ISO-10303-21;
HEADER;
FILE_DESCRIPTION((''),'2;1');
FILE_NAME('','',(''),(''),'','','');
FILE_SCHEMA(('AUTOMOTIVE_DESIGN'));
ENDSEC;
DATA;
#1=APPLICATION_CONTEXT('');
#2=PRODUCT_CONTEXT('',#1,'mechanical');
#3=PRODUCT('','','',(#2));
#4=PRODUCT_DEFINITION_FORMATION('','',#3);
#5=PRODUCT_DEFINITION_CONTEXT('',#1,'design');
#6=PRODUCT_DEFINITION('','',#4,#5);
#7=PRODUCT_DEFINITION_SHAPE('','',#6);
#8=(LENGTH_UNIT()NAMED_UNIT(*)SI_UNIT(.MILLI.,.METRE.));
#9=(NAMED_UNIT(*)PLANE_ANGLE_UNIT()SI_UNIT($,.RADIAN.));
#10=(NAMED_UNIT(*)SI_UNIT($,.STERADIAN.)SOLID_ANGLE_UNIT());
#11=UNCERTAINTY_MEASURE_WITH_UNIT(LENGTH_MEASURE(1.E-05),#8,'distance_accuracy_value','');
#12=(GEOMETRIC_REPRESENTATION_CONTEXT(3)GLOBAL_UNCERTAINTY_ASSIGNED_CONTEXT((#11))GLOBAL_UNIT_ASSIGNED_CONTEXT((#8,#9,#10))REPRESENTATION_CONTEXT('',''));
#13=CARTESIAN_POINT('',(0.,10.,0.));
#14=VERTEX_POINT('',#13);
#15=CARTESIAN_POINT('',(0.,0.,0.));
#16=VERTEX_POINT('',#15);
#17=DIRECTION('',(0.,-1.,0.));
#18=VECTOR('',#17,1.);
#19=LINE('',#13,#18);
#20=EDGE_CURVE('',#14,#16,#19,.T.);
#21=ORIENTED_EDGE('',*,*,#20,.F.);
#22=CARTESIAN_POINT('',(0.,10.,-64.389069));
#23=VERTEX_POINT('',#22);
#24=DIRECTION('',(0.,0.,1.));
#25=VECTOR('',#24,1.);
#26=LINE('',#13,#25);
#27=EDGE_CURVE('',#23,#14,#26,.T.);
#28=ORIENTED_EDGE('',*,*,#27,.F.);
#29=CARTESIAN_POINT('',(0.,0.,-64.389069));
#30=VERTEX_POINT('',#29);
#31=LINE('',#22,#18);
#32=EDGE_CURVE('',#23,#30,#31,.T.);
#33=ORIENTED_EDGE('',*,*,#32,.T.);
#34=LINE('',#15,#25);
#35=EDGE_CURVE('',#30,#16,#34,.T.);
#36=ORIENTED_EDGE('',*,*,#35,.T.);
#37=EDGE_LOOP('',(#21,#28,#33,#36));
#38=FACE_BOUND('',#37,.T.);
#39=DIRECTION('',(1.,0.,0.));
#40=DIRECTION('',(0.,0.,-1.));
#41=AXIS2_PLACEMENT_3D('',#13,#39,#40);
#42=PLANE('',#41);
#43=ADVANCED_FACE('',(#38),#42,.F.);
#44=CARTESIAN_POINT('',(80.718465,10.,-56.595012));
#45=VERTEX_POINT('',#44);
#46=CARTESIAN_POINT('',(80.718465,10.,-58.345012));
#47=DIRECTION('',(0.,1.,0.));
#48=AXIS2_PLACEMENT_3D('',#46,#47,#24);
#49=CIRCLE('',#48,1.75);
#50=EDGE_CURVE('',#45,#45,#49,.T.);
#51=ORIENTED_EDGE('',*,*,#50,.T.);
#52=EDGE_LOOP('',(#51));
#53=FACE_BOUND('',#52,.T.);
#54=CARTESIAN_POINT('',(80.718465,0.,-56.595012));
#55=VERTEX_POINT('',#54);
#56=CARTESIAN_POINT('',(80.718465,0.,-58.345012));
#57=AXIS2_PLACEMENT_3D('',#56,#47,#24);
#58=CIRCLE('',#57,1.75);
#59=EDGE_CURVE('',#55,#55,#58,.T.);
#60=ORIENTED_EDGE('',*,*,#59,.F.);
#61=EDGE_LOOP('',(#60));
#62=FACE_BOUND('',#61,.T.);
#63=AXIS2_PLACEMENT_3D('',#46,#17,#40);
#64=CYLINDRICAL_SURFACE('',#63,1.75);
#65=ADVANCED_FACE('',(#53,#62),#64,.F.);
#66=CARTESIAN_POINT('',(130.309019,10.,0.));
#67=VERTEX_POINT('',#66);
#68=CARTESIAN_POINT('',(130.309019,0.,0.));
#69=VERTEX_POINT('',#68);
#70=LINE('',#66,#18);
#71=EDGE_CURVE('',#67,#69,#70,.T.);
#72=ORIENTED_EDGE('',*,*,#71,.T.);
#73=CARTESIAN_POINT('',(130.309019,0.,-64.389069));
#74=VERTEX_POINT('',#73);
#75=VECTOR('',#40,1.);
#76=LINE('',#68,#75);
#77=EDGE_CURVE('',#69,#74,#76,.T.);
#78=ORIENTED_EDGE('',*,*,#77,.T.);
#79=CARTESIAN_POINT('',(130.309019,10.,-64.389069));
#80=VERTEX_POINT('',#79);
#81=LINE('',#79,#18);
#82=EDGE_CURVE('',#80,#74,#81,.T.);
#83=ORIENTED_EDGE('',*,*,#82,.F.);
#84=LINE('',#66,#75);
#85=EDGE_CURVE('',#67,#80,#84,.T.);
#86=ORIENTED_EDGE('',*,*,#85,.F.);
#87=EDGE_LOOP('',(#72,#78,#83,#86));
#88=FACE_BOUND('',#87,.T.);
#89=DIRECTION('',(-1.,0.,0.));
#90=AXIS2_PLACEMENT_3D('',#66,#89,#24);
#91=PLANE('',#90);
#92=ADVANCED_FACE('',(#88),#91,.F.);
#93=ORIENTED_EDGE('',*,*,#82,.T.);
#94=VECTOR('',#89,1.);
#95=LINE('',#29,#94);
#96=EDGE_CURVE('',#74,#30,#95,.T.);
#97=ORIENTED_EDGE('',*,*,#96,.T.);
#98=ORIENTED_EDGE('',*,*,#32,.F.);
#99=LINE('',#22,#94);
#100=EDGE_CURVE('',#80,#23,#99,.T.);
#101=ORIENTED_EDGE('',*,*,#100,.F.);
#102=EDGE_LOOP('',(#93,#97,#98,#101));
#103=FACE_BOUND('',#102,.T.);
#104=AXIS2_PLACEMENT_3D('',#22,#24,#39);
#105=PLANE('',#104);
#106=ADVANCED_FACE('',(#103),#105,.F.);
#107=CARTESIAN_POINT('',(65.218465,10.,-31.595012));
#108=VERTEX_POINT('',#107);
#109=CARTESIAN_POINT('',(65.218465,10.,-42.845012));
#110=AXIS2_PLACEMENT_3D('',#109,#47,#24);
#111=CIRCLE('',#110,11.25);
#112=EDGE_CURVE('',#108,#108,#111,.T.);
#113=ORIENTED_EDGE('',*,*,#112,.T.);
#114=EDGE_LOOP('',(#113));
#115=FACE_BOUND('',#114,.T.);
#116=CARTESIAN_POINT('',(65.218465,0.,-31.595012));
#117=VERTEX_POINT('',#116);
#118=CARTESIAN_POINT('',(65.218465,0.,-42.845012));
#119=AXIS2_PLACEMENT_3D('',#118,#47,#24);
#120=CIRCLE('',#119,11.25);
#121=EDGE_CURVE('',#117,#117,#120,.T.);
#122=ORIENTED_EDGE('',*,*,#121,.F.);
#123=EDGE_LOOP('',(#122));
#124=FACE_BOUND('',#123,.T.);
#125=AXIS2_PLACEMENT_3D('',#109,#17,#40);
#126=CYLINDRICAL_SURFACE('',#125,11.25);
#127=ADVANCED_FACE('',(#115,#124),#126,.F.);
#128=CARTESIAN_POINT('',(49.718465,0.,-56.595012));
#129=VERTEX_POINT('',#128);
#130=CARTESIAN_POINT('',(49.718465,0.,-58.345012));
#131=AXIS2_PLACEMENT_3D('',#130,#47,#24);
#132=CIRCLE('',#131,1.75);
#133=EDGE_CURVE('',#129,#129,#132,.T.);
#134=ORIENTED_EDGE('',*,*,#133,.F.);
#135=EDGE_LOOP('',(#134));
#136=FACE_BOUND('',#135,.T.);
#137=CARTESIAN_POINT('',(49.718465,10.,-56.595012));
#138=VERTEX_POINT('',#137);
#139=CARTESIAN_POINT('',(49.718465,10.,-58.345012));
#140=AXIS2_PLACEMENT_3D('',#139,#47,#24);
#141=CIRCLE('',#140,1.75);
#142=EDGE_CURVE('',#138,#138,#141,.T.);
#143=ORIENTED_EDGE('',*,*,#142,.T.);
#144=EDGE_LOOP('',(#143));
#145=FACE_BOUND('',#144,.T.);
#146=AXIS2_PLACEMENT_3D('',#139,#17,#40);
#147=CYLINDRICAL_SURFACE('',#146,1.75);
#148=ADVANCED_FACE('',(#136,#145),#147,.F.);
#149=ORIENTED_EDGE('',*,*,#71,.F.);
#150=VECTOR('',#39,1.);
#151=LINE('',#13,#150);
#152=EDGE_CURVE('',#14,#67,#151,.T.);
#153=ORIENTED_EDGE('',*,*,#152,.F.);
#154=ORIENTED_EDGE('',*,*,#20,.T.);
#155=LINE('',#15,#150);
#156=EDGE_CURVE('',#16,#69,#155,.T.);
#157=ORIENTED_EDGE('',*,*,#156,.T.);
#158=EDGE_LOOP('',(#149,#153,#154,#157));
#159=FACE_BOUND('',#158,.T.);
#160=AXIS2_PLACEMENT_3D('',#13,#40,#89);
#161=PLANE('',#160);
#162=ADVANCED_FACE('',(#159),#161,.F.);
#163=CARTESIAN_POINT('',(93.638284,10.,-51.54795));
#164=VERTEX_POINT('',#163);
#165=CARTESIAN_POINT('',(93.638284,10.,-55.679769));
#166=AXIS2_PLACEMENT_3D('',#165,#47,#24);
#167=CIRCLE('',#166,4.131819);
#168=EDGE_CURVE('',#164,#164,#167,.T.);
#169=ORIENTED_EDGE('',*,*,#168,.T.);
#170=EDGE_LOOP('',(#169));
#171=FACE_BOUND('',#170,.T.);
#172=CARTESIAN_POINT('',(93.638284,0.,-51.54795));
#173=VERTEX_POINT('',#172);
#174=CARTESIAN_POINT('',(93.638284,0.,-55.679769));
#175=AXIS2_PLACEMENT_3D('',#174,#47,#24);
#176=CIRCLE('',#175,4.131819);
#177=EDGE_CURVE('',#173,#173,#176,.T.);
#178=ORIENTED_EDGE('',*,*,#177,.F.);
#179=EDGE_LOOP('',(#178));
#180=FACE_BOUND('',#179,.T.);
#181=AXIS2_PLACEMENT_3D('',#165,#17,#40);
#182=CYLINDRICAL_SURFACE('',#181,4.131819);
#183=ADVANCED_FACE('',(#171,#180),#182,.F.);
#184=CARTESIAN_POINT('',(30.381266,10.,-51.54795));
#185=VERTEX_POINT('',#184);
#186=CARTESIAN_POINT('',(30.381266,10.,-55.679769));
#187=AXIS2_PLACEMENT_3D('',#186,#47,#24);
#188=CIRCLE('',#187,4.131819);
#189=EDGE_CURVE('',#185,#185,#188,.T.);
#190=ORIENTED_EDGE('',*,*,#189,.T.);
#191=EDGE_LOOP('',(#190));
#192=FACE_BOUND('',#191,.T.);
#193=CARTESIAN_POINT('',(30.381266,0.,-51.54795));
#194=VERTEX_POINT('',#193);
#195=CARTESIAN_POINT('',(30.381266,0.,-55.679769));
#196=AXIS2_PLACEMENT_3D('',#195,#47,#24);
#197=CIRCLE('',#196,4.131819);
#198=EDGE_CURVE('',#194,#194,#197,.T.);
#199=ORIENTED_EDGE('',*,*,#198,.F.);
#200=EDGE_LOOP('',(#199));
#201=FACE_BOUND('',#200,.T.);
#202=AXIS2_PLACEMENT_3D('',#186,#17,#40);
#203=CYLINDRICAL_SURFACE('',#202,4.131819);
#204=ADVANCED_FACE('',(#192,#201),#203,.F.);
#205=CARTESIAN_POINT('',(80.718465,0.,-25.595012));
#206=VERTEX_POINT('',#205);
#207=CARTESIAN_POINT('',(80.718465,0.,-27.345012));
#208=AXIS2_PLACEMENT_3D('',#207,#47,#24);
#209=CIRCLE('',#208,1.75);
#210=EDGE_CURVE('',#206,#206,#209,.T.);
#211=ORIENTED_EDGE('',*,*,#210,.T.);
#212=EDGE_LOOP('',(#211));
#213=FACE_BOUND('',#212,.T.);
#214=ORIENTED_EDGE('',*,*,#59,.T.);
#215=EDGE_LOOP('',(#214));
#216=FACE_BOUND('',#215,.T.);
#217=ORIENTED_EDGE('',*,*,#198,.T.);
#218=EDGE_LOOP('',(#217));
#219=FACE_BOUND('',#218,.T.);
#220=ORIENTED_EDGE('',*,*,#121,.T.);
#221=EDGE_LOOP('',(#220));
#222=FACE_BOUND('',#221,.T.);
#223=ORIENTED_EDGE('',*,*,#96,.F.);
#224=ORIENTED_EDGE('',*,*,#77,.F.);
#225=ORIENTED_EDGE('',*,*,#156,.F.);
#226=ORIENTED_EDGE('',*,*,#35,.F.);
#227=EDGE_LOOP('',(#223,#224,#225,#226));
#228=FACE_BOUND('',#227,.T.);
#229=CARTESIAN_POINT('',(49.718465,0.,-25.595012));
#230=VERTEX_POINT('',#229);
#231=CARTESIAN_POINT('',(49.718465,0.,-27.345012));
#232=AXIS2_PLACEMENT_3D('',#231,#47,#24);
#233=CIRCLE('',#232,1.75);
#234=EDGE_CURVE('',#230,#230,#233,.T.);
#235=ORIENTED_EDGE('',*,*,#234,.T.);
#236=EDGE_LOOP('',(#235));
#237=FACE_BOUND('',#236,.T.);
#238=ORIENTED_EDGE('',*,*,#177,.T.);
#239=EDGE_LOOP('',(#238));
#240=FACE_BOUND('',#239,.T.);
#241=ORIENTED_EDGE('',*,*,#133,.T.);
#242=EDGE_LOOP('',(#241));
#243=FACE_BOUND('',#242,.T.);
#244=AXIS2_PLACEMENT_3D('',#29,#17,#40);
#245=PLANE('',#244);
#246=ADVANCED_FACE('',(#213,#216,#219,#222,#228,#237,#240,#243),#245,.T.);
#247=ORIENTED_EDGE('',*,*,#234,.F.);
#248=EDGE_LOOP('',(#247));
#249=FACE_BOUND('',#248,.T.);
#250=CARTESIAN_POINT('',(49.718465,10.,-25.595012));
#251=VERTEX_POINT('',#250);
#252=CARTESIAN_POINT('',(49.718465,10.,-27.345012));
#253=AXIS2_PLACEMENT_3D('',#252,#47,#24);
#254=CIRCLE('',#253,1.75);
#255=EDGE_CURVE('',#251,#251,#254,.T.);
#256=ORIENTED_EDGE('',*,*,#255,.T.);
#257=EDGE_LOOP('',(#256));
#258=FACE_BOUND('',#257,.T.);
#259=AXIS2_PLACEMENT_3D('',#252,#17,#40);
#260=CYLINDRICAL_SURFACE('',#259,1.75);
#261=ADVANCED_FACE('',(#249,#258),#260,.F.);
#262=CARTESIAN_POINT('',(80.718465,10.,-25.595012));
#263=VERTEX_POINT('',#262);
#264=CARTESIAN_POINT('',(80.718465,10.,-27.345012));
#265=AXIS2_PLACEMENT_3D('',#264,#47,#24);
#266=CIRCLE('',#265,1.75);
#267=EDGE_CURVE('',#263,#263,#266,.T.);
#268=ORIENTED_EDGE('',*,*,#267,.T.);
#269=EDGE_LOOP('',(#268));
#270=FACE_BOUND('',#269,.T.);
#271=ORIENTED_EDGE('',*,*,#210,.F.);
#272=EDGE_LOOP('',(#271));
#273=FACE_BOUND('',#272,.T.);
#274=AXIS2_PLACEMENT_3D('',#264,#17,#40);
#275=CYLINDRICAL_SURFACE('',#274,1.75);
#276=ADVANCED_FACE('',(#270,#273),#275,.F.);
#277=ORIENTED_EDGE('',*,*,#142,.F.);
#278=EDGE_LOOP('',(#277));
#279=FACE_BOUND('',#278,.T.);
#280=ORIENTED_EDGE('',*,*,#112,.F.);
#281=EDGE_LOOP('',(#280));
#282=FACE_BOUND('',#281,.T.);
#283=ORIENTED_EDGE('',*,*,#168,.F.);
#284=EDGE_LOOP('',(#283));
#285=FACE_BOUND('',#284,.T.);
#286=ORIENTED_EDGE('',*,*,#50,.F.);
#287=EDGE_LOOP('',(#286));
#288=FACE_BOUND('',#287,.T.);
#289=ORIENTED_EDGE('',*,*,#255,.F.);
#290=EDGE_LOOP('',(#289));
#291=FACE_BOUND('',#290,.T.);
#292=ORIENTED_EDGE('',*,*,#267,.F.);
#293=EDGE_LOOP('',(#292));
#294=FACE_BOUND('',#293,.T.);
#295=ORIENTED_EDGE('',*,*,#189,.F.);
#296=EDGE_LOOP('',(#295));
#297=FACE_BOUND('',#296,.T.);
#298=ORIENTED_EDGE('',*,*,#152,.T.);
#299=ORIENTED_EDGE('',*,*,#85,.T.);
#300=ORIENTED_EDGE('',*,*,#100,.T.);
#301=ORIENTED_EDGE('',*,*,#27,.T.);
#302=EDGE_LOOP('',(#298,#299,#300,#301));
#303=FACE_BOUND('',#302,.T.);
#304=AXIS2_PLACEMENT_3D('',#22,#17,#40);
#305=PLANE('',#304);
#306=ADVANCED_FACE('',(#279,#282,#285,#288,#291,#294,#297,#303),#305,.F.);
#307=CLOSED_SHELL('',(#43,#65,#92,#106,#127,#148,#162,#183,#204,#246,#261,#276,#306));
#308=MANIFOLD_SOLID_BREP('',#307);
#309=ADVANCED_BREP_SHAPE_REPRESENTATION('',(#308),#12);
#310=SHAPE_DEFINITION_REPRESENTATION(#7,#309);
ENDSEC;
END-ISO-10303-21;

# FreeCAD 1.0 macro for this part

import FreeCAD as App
import Part
import Sketcher

V = App.Vector

doc = App.newDocument("Part")
params = doc.addObject("Spreadsheet::Sheet", "Params")
for row, (alias, value) in enumerate([
    ("sketch1_diameter", "3.5 mm"),
    ("sketch1_diameter2", "22.5 mm"),
    ("pad1_length", "10 mm"),
], start=1):
    params.set(f"A{row}", alias)
    params.set(f"B{row}", "=" + value)
    params.setAlias(f"B{row}", alias)

body = doc.addObject("PartDesign::Body", "Body")

# Sketch on XZ plane
sketch1 = doc.addObject("Sketcher::SketchObject", "Sketch")
body.addObject(sketch1)
sketch1.AttachmentSupport = (doc.XZ_Plane, [""])
sketch1.MapMode = "FlatFace"
sketch1.addGeometry(Part.LineSegment(V(0, -64.389069, 0), V(0, 0, 0)), False)
sketch1.addGeometry(Part.LineSegment(V(0, 0, 0), V(130.309019, 0, 0)), False)
sketch1.addGeometry(Part.LineSegment(V(130.309019, 0, 0), V(130.309019, -64.389069, 0)), False)
sketch1.addGeometry(Part.LineSegment(V(130.309019, -64.389069, 0), V(0, -64.389069, 0)), False)
sketch1.addGeometry(Part.Circle(V(49.718465, -27.345012, 0), V(0, 0, 1), 1.75), False)
sketch1.addGeometry(Part.Circle(V(80.718465, -27.345012, 0), V(0, 0, 1), 1.75), False)
sketch1.addGeometry(Part.Circle(V(30.381266, -55.679769, 0), V(0, 0, 1), 4.131819), False)
sketch1.addGeometry(Part.Circle(V(49.718465, -58.345012, 0), V(0, 0, 1), 1.75), False)
sketch1.addGeometry(Part.Circle(V(65.218465, -42.845012, 0), V(0, 0, 1), 11.25), False)
sketch1.addGeometry(Part.Circle(V(93.638284, -55.679769, 0), V(0, 0, 1), 4.131819), False)
sketch1.addGeometry(Part.Circle(V(80.718465, -58.345012, 0), V(0, 0, 1), 1.75), False)
sketch1.addConstraint(Sketcher.Constraint("Coincident", 0, 2, 1, 1))
sketch1.addConstraint(Sketcher.Constraint("Coincident", 1, 2, 2, 1))
sketch1.addConstraint(Sketcher.Constraint("Coincident", 2, 2, 3, 1))
sketch1.addConstraint(Sketcher.Constraint("Coincident", 3, 2, 0, 1))
sketch1.addConstraint(Sketcher.Constraint("Vertical", 0))
sketch1.addConstraint(Sketcher.Constraint("Horizontal", 1))
sketch1.addConstraint(Sketcher.Constraint("Vertical", 2))
sketch1.addConstraint(Sketcher.Constraint("Horizontal", 3))
sketch1.addConstraint(Sketcher.Constraint("Coincident", 0, 2, -1, 1))
sketch1.addConstraint(Sketcher.Constraint("Equal", 4, 5))
sketch1.addConstraint(Sketcher.Constraint("Equal", 5, 7))
sketch1.addConstraint(Sketcher.Constraint("Equal", 6, 9))
sketch1.addConstraint(Sketcher.Constraint("Equal", 7, 10))
sketch1.addConstraint(Sketcher.Constraint("Horizontal", 4, 3, 5, 3))
sketch1.addConstraint(Sketcher.Constraint("Horizontal", 6, 3, 9, 3))
sketch1.addConstraint(Sketcher.Constraint("Horizontal", 7, 3, 10, 3))
sketch1.addConstraint(Sketcher.Constraint("Vertical", 4, 3, 7, 3))
sketch1.addConstraint(Sketcher.Constraint("Vertical", 5, 3, 10, 3))
sketch1.addConstraint(Sketcher.Constraint("Diameter", 4, 3.5))
sketch1.addConstraint(Sketcher.Constraint("Diameter", 8, 22.5))
sketch1.addConstraint(Sketcher.Constraint("DistanceX", 4, 3, 5, 3, 31.0))
sketch1.addConstraint(Sketcher.Constraint("DistanceY", 7, 3, 4, 3, 31.0))
sketch1.addConstraint(Sketcher.Constraint("DistanceX", 4, 3, 8, 3, 15.5))
sketch1.addConstraint(Sketcher.Constraint("DistanceY", 8, 3, 4, 3, 15.5))
sketch1.addConstraint(Sketcher.Constraint("Diameter", 6, 8.263638))
sketch1.addConstraint(Sketcher.Constraint("DistanceX", 1, 1, 1, 2, 130.309019))
sketch1.addConstraint(Sketcher.Constraint("DistanceY", 0, 1, 0, 2, 64.389069))
sketch1.addConstraint(Sketcher.Constraint("DistanceX", 6, 3, 4, 3, 19.337198))
sketch1.addConstraint(Sketcher.Constraint("DistanceY", 2, 2, 9, 3, 8.7093))
sketch1.addConstraint(Sketcher.Constraint("DistanceX", 5, 3, 9, 3, 12.91982))
sketch1.addConstraint(Sketcher.Constraint("DistanceX", -1, 1, 4, 3, 49.718465))
sketch1.addConstraint(Sketcher.Constraint("DistanceY", 4, 3, -1, 1, 27.345012))
sketch1.setExpression("Constraints[18]", "Params.sketch1_diameter")
sketch1.setExpression("Constraints[19]", "Params.sketch1_diameter2")
pad1 = doc.addObject("PartDesign::Pad", "Pad")
body.addObject(pad1)
pad1.Profile = sketch1
pad1.setExpression("Length", "Params.pad1_length")
pad1.Reversed = True

doc.recompute()
